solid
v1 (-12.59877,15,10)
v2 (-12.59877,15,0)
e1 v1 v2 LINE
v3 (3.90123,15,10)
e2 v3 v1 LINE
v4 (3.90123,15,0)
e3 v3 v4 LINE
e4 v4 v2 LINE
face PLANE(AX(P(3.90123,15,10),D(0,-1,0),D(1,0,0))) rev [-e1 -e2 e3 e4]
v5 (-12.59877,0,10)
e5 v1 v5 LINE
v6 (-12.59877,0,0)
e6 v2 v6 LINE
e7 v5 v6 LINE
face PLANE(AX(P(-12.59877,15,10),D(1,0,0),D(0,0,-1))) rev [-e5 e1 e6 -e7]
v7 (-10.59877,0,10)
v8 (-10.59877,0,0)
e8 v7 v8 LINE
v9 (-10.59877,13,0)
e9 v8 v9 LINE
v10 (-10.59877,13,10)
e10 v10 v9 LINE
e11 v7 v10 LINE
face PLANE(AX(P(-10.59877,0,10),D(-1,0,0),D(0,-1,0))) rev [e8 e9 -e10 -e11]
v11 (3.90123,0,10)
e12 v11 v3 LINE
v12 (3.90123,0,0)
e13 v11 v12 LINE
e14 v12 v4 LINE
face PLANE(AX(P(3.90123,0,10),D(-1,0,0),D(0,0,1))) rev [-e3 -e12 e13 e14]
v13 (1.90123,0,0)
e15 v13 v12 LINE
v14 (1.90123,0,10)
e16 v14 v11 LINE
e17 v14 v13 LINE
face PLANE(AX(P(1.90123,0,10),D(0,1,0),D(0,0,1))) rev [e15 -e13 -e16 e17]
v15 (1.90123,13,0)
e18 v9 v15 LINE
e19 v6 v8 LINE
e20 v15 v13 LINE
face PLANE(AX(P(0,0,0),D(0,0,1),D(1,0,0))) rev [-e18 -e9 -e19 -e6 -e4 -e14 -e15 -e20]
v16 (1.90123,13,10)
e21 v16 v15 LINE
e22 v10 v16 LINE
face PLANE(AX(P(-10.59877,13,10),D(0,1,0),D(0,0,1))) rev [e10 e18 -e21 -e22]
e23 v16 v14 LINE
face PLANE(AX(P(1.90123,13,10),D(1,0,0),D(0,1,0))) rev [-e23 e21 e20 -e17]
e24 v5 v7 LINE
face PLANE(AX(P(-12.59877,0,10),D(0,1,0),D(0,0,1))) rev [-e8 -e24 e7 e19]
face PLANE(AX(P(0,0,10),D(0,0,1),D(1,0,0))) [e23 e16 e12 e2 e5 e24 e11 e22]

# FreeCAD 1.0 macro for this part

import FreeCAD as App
import Part
import Sketcher
from FreeCAD import Vector

doc = App.newDocument("Part")
body = doc.addObject("PartDesign::Body", "Body")

# Sketch on XY plane
sketch1 = doc.addObject("Sketcher::SketchObject", "Sketch")
body.addObject(sketch1)
sketch1.AttachmentSupport = (doc.XY_Plane, [""])
sketch1.MapMode = "FlatFace"
sketch1.addGeometry([
    Part.LineSegment(Vector(-12.6, 0, 0), Vector(-10.6, 0, 0)),  # 0
    Part.LineSegment(Vector(-10.6, 0, 0), Vector(-10.6, 13, 0)),  # 1
    Part.LineSegment(Vector(-10.6, 13, 0), Vector(1.9, 13, 0)),  # 2
    Part.LineSegment(Vector(1.9, 13, 0), Vector(1.9, 0, 0)),  # 3
    Part.LineSegment(Vector(1.9, 0, 0), Vector(3.9, 0, 0)),  # 4
    Part.LineSegment(Vector(3.9, 0, 0), Vector(3.9, 15, 0)),  # 5
    Part.LineSegment(Vector(3.9, 15, 0), Vector(-12.6, 15, 0)),  # 6
    Part.LineSegment(Vector(-12.6, 15, 0), Vector(-12.6, 0, 0)),  # 7
], False)
sketch1.addConstraint([
    Sketcher.Constraint("Coincident", 0, 2, 1, 1),
    Sketcher.Constraint("Coincident", 1, 2, 2, 1),
    Sketcher.Constraint("Coincident", 2, 2, 3, 1),
    Sketcher.Constraint("Coincident", 3, 2, 4, 1),
    Sketcher.Constraint("Coincident", 4, 2, 5, 1),
    Sketcher.Constraint("Coincident", 5, 2, 6, 1),
    Sketcher.Constraint("Coincident", 6, 2, 7, 1),
    Sketcher.Constraint("Coincident", 7, 2, 0, 1),
    Sketcher.Constraint("Horizontal", 0),
    Sketcher.Constraint("Vertical", 1),
    Sketcher.Constraint("Horizontal", 2),
    Sketcher.Constraint("Vertical", 3),
    Sketcher.Constraint("Horizontal", 4),
    Sketcher.Constraint("Vertical", 5),
    Sketcher.Constraint("Horizontal", 6),
    Sketcher.Constraint("Vertical", 7),
    Sketcher.Constraint("PointOnObject", 0, 2, -1),
    Sketcher.Constraint("PointOnObject", 3, 2, -1),
    Sketcher.Constraint("Equal", 0, 4),
    Sketcher.Constraint("DistanceX", 0, 1, 0, 2, 2.0),
    Sketcher.Constraint("DistanceY", 1, 1, 1, 2, 13.0),
    Sketcher.Constraint("DistanceY", 5, 1, 5, 2, 15.0),
    Sketcher.Constraint("DistanceX", 2, 1, 2, 2, 12.5),
    Sketcher.Constraint("DistanceX", 0, 2, -1, 1, 10.59877),
])
pad1 = doc.addObject("PartDesign::Pad", "Pad")
body.addObject(pad1)
pad1.Profile = sketch1
pad1.Length = 10

doc.recompute()
